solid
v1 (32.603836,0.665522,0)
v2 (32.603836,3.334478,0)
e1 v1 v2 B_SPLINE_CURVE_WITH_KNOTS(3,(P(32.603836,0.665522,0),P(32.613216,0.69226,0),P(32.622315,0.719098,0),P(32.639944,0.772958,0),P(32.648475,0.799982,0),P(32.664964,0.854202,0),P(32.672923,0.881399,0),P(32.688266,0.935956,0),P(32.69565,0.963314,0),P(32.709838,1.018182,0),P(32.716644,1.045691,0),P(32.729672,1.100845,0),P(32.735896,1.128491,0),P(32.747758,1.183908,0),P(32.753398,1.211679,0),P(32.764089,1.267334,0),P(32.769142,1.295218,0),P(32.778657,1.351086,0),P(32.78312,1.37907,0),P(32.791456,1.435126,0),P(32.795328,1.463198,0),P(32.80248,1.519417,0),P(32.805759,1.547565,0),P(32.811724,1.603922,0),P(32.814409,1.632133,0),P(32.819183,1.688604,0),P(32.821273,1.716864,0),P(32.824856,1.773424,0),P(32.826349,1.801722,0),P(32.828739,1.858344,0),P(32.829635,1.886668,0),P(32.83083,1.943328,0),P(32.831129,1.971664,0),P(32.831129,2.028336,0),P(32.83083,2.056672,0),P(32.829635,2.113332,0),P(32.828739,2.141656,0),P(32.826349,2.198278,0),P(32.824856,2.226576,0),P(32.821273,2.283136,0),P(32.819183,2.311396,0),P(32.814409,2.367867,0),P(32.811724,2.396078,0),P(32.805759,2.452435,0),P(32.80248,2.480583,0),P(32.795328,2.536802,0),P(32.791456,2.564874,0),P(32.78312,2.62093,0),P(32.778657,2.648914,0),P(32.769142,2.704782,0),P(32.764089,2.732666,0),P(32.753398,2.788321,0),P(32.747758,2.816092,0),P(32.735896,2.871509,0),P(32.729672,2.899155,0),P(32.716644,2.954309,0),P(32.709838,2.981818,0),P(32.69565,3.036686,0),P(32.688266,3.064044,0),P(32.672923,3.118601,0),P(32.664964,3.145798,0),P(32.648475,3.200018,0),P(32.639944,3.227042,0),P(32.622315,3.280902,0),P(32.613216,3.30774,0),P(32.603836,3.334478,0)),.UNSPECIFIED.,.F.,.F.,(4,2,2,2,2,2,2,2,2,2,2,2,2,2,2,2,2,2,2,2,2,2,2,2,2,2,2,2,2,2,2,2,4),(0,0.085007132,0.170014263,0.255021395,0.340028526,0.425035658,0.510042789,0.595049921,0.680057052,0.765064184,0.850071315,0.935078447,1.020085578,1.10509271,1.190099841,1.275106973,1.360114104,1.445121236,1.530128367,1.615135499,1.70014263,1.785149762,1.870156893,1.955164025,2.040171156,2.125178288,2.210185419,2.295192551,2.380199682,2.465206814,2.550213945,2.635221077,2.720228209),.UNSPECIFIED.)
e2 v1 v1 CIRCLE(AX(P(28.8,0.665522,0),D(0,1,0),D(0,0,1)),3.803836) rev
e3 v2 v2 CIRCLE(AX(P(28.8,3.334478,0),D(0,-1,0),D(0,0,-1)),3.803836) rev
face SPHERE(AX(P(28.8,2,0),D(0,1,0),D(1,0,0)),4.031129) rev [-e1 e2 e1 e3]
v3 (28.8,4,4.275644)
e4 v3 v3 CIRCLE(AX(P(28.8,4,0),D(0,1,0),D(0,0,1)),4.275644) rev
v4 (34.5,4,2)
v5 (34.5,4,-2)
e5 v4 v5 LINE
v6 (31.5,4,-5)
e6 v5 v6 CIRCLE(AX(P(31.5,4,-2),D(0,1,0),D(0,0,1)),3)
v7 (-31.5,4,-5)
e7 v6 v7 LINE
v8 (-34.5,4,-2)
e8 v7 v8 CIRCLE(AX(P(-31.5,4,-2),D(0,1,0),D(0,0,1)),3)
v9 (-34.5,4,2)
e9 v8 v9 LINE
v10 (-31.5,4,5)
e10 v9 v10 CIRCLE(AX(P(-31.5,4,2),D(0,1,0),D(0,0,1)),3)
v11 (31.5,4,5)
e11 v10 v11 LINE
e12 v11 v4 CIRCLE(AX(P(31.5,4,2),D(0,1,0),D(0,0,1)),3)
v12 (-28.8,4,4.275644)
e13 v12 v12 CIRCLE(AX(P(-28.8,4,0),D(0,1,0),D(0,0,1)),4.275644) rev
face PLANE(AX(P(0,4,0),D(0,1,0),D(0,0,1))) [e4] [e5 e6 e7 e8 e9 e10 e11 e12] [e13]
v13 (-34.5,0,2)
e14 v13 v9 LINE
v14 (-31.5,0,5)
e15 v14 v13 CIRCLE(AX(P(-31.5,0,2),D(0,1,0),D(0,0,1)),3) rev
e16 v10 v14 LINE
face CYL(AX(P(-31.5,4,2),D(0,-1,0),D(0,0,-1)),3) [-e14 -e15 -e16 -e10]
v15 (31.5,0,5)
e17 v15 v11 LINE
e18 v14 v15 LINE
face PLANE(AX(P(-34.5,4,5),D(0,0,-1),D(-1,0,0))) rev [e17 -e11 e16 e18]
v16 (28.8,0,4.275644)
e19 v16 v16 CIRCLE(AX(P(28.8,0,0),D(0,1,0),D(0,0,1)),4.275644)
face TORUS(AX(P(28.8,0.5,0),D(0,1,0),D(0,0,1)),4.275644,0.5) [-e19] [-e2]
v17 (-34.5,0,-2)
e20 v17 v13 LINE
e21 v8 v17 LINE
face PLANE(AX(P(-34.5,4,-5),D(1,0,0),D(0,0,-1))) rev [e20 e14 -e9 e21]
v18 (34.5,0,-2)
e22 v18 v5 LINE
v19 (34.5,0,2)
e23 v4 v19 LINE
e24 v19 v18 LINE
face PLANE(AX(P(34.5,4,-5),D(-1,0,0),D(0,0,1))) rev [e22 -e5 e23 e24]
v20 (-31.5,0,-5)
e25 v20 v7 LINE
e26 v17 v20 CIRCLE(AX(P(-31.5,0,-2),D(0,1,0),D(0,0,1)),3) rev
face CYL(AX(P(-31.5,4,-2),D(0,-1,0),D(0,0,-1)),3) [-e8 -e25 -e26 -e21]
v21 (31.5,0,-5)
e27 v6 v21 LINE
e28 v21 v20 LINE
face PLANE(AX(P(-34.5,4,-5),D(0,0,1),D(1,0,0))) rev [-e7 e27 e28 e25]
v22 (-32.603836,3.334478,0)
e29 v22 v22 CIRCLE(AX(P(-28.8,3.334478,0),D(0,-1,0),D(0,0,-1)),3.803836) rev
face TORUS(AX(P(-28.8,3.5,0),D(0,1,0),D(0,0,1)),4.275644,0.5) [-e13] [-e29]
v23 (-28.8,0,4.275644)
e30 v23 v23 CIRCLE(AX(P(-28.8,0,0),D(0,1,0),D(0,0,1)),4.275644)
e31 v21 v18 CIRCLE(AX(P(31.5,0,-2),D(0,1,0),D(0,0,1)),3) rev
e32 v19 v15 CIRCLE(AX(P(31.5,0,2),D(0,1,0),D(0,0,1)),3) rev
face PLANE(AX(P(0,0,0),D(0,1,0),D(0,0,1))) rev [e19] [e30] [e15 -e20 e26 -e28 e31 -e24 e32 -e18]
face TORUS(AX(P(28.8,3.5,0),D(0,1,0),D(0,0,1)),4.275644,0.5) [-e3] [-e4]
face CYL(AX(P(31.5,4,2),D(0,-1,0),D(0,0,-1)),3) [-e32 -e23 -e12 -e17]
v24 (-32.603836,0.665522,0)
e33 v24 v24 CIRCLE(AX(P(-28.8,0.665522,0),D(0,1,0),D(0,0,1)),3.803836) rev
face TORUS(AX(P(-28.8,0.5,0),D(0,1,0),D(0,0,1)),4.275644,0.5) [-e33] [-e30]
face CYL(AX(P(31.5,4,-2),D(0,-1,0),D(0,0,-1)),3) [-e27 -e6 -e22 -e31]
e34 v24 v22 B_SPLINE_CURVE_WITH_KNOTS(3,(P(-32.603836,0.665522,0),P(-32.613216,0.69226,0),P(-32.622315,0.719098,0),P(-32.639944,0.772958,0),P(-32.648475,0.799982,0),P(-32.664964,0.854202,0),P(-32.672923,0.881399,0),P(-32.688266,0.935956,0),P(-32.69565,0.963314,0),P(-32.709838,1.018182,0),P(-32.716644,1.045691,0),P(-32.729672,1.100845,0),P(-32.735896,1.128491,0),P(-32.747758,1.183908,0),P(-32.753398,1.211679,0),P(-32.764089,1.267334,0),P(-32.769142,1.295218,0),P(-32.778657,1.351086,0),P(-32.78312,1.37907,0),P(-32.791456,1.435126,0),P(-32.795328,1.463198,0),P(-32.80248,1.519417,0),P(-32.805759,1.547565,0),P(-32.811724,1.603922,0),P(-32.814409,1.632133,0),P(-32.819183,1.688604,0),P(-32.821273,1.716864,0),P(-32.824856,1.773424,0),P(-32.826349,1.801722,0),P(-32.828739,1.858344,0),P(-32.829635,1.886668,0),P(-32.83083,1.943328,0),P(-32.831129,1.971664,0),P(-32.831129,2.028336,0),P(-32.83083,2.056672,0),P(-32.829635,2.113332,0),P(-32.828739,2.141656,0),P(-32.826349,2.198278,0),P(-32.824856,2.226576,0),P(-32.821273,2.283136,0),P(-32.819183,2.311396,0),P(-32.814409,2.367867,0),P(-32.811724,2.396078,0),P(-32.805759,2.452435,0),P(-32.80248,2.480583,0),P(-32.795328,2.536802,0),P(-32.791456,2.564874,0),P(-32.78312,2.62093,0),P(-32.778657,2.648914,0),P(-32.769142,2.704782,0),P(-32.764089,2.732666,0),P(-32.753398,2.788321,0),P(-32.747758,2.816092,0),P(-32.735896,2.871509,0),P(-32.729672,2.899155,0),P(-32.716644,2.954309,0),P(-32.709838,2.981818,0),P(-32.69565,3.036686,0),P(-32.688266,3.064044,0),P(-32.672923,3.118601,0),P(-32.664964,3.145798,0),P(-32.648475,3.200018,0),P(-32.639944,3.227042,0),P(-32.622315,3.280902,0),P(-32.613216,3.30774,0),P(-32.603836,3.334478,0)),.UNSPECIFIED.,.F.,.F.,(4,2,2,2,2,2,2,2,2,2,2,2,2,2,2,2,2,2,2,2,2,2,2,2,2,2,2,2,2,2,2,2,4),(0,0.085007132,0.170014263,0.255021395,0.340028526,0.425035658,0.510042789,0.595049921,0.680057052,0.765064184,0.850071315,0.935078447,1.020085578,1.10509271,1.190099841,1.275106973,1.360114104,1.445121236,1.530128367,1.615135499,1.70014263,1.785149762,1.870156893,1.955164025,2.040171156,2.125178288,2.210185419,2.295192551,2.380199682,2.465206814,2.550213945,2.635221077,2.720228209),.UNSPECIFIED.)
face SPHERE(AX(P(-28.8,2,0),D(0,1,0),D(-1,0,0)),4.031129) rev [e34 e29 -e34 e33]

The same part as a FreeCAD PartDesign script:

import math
import FreeCAD as App
import Part
import Sketcher
from FreeCAD import Vector


def edges_at(feature, points):
    """Names of the edges that pass closest to the given points."""
    edges = feature.Shape.Edges
    near = lambda p: min(range(len(edges)), key=lambda i: edges[i].distToShape(Part.Vertex(*p))[0])
    return sorted({f"Edge{near(p) + 1}" for p in points})

doc = App.newDocument("Part")
params = doc.addObject("Spreadsheet::Sheet", "Params")
for row, (alias, value) in enumerate([
    ("sketch1_width", "69 mm"),
    ("sketch1_height", "10 mm"),
    ("pad1_length", "4 mm"),
    ("sketch2_height", "4 mm"),
    ("sketch2_width", "3.5 mm"),
    ("groove_angle", "360 deg"),
    ("fillet_radius", "3 mm"),
    ("fillet2_radius", "0.5 mm"),
], start=1):
    params.set(f"A{row}", alias)
    params.set(f"B{row}", "=" + value)
    params.setAlias(f"B{row}", alias)

body = doc.addObject("PartDesign::Body", "Body")

sketch1 = doc.addObject("Sketcher::SketchObject", "Sketch")
body.addObject(sketch1)
sketch1.AttachmentSupport = (doc.XZ_Plane, [""])
sketch1.MapMode = "FlatFace"
sketch1.addGeometry([
    Part.LineSegment(Vector(-34, -5, 0), Vector(-34, 5, 0)),
    Part.LineSegment(Vector(-34, 5, 0), Vector(34, 5, 0)),
    Part.LineSegment(Vector(34, 5, 0), Vector(34, -5, 0)),
    Part.LineSegment(Vector(34, -5, 0), Vector(-34, -5, 0)),
], False)
sketch1.addConstraint([
    Sketcher.Constraint("Coincident", 0, 2, 1, 1),
    Sketcher.Constraint("Coincident", 1, 2, 2, 1),
    Sketcher.Constraint("Coincident", 2, 2, 3, 1),
    Sketcher.Constraint("Coincident", 3, 2, 0, 1),
    Sketcher.Constraint("Vertical", 0),
    Sketcher.Constraint("Horizontal", 1),
    Sketcher.Constraint("Vertical", 2),
    Sketcher.Constraint("Horizontal", 3),
    Sketcher.Constraint("Symmetric", 0, 2, 2, 2, -1, 1),
    Sketcher.Constraint("DistanceX", 1, 1, 1, 2, 69.0),
    Sketcher.Constraint("DistanceY", 0, 1, 0, 2, 10.0),
])
sketch1.setExpression("Constraints[9]", "Params.sketch1_width")
sketch1.setExpression("Constraints[10]", "Params.sketch1_height")
pad1 = doc.addObject("PartDesign::Pad", "Pad")
body.addObject(pad1)
pad1.Profile = sketch1
pad1.setExpression("Length", "Params.pad1_length")
pad1.Reversed = True

sketch2 = doc.addObject("Sketcher::SketchObject", "Sketch001")
body.addObject(sketch2)
sketch2.AttachmentSupport = (doc.XY_Plane, [""])
sketch2.MapMode = "FlatFace"
sketch2.addGeometry([
    Part.LineSegment(Vector(-28.8, 0, 0), Vector(-28.8, 4, 0)),
    Part.LineSegment(Vector(-28.8, 4, 0), Vector(-32.3, 4, 0)),
    Part.ArcOfCircle(Part.Circle(Vector(-28.8, 2, 0), Vector(0, 0, 1), 4), math.radians(150), math.radians(210)),
    Part.LineSegment(Vector(-32.3, 0, 0), Vector(-28.8, 0, 0)),
], False)
sketch2.addGeometry(Part.LineSegment(Vector(-28.8, 4, 0), Vector(-28.8, 0, 0)), True)
sketch2.addConstraint([
    Sketcher.Constraint("Coincident", 0, 2, 1, 1),
    Sketcher.Constraint("Coincident", 1, 2, 2, 1),
    Sketcher.Constraint("Coincident", 2, 2, 3, 1),
    Sketcher.Constraint("Coincident", 3, 2, 0, 1),
    Sketcher.Constraint("Vertical", 0),
    Sketcher.Constraint("Horizontal", 1),
    Sketcher.Constraint("Horizontal", 3),
    Sketcher.Constraint("Vertical", 4),
    Sketcher.Constraint("Coincident", 4, 1, 0, 2),
    Sketcher.Constraint("PointOnObject", 2, 2, -1),
    Sketcher.Constraint("PointOnObject", 4, 2, -1),
    Sketcher.Constraint("Vertical", 2, 3, 0, 2),
    Sketcher.Constraint("Vertical", 1, 2, 2, 2),
    Sketcher.Constraint("DistanceY", 0, 1, 0, 2, 4.0),
    Sketcher.Constraint("DistanceX", 1, 2, 1, 1, 3.5),
    Sketcher.Constraint("DistanceX", 2, 3, -1, 1, 28.8),
])
sketch2.setExpression("Constraints[13]", "Params.sketch2_height")
sketch2.setExpression("Constraints[14]", "Params.sketch2_width")
groove = doc.addObject("PartDesign::Groove", "Groove")
body.addObject(groove)
groove.Profile = sketch2
groove.ReferenceAxis = (sketch2, ["Axis0"])
groove.setExpression("Angle", "Params.groove_angle")
doc.recompute()

fillet = doc.addObject("PartDesign::Fillet", "Fillet")
body.addObject(fillet)
fillet.Base = (groove, edges_at(groove, [
    (34.5, 2, 5),
    (-34.5, 2, 5),
    (-34.5, 2, -5),
    (34.5, 2, -5),
]))
fillet.setExpression("Radius", "Params.fillet_radius")
doc.recompute()

mirrored = doc.addObject("PartDesign::Mirrored", "Mirrored")
body.addObject(mirrored)
mirrored.Originals = [groove]
mirrored.MirrorPlane = (doc.YZ_Plane, [""])
body.Tip = mirrored
doc.recompute()

fillet2 = doc.addObject("PartDesign::Fillet", "Fillet001")
body.addObject(fillet2)
fillet2.Base = (mirrored, edges_at(mirrored, [
    (-25.3, 4, 0),
    (-25.3, 0, 0),
    (25.3, 4, 0),
    (25.3, 0, 0),
]))
fillet2.setExpression("Radius", "Params.fillet2_radius")

doc.recompute()
